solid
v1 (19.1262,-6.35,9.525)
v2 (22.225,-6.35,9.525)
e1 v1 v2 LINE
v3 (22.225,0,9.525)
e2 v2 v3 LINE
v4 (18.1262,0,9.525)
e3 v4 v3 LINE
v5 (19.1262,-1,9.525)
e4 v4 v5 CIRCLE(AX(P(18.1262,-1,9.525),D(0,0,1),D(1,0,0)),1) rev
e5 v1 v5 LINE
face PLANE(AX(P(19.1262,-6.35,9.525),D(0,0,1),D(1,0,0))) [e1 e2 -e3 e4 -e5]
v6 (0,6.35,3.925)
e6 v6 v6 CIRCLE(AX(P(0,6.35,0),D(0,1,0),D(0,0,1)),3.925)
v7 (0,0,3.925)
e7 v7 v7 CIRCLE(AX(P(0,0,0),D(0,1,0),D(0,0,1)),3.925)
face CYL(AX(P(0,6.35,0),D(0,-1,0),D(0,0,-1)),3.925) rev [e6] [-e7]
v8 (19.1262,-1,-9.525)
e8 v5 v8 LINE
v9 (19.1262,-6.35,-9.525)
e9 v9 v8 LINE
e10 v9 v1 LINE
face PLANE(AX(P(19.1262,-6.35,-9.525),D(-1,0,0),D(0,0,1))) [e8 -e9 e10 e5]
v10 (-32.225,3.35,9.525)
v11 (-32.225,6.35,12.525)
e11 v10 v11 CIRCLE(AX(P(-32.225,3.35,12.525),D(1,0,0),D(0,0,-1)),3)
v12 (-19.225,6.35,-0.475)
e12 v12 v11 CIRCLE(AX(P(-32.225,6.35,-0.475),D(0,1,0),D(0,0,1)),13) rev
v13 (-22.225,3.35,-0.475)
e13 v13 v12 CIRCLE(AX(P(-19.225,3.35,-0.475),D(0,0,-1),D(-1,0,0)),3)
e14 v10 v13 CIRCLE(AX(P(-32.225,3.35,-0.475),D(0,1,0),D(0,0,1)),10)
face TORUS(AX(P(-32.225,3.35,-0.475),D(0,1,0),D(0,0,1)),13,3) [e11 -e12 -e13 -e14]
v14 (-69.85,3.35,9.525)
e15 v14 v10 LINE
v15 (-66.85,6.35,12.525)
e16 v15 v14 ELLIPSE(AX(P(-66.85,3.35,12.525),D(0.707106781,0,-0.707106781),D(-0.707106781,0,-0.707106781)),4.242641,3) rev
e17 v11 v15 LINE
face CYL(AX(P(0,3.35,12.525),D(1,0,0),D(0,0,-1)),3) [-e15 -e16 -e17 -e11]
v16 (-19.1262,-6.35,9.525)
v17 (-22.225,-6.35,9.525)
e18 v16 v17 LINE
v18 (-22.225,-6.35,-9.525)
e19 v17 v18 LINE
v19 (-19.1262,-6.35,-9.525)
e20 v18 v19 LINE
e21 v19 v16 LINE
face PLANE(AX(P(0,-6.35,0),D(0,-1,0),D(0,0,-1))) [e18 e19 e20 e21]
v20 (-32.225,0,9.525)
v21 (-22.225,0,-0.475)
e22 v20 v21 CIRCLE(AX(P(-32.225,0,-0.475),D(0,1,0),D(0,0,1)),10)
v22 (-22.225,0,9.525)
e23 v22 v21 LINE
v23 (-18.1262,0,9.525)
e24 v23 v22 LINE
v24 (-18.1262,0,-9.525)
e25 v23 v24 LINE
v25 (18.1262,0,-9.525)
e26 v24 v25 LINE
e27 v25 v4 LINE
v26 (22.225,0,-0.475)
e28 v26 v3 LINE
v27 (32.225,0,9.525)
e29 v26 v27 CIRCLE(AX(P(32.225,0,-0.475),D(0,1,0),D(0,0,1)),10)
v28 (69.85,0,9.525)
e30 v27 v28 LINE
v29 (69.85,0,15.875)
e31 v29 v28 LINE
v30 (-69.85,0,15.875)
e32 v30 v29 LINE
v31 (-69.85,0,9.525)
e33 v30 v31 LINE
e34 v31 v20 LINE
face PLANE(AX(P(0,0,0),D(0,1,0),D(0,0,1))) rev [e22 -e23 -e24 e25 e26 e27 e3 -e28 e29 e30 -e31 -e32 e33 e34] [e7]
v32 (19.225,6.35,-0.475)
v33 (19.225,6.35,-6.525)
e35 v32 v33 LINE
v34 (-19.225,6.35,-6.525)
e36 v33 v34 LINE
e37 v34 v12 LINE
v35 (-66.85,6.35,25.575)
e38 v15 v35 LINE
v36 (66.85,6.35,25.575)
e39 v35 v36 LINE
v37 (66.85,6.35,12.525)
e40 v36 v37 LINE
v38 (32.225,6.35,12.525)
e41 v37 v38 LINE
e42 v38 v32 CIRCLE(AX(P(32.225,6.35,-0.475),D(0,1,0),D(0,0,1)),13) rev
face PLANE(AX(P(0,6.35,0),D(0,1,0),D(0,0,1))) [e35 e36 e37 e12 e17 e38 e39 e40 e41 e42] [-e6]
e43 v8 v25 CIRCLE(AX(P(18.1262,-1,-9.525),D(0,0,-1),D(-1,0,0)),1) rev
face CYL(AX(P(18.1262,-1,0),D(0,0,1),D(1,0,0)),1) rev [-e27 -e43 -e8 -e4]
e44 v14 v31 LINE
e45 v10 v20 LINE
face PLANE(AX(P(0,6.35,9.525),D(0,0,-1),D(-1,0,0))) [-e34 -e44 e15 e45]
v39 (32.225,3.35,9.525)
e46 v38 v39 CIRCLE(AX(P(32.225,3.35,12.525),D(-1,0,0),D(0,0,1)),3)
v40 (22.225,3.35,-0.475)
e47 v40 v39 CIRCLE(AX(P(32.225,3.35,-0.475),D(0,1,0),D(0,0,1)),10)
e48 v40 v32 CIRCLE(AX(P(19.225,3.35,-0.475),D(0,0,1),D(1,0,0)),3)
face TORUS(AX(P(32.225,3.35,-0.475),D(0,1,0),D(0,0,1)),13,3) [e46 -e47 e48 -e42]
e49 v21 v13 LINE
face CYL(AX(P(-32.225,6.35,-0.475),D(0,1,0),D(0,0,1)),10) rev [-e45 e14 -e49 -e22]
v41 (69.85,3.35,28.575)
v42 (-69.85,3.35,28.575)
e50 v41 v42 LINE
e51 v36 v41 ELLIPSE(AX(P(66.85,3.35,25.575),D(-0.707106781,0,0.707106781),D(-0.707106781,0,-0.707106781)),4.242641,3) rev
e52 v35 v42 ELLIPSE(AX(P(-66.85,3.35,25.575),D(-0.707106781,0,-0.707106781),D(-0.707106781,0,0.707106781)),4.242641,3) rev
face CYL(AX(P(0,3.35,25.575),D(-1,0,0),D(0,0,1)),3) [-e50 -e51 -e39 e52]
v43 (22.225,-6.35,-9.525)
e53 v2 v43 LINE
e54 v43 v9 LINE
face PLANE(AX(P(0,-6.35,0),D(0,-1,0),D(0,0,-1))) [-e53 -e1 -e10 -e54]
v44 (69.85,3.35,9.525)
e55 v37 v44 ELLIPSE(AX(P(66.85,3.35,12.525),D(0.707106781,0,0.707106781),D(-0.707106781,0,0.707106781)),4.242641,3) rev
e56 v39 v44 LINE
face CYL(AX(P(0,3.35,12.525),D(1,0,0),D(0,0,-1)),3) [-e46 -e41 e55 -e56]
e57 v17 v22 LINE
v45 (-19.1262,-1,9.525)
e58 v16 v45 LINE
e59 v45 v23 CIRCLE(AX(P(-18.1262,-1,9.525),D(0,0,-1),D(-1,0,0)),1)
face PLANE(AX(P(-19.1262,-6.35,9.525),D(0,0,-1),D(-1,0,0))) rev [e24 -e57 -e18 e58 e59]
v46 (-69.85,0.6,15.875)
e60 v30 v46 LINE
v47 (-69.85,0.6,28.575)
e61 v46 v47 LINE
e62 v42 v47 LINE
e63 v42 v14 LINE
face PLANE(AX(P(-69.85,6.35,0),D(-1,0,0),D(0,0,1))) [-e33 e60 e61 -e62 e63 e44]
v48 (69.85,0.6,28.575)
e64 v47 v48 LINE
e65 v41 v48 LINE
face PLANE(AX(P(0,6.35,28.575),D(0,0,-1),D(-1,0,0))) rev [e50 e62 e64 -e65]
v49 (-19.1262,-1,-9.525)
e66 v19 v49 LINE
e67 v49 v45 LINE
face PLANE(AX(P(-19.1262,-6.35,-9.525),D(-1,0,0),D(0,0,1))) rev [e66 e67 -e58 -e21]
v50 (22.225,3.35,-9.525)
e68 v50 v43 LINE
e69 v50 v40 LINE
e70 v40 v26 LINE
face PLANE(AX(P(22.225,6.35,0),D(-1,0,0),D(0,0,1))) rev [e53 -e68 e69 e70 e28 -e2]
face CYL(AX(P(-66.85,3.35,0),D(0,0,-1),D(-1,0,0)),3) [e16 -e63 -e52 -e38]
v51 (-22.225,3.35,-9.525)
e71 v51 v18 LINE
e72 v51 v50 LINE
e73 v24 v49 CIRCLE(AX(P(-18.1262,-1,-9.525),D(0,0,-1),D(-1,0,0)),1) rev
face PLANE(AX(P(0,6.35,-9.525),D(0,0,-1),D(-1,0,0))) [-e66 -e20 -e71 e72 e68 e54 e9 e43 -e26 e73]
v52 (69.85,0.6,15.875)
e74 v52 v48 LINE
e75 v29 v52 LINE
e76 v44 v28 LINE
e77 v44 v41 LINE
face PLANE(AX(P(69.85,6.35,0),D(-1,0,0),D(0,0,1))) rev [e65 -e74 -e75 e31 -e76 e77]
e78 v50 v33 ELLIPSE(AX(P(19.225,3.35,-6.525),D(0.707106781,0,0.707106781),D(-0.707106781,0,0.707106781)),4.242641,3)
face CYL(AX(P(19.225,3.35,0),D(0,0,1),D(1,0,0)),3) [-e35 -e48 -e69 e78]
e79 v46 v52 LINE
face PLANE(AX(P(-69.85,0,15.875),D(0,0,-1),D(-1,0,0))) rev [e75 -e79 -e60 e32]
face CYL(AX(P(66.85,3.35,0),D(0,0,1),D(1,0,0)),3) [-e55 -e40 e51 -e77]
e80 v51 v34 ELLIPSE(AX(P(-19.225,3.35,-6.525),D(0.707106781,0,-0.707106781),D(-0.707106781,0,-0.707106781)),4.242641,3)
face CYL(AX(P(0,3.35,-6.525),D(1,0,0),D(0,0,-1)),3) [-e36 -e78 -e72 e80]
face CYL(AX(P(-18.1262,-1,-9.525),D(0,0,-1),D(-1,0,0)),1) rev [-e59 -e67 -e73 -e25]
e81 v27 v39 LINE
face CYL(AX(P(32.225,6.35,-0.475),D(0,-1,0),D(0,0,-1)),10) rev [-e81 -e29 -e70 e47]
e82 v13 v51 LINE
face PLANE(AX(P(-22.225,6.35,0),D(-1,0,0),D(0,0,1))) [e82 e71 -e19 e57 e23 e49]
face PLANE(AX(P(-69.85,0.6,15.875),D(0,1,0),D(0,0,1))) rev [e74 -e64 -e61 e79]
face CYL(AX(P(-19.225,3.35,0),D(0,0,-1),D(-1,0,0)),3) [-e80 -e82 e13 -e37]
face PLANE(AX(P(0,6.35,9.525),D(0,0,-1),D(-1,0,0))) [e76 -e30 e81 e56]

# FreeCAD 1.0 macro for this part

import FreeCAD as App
import Part
import Sketcher
from FreeCAD import Vector
Q = App.Units.Quantity


def edges_at(feature, points):
    """Names of the edges that pass closest to the given points."""
    edges = feature.Shape.Edges
    near = lambda p: min(range(len(edges)), key=lambda i: edges[i].distToShape(Part.Vertex(*p))[0])
    return sorted({f"Edge{near(p) + 1}" for p in points})

doc = App.newDocument("Part")
body = doc.addObject("PartDesign::Body", "Body")

# Sketch on XZ plane
sketch1 = body.newObject("Sketcher::SketchObject", "Sketch")
sketch1.AttachmentSupport = (doc.getObject("XZ_Plane"), [""])
sketch1.MapMode = "FlatFace"
sketch1.addGeometry([
    Part.LineSegment(Vector(-69.8, 28.6, 0), Vector(69.8, 28.6, 0)),  # 0
    Part.LineSegment(Vector(69.8, 28.6, 0), Vector(69.8, 9.5, 0)),  # 1
    Part.LineSegment(Vector(69.8, 9.5, 0), Vector(22.2, 9.5, 0)),  # 2
    Part.LineSegment(Vector(22.2, 9.5, 0), Vector(22.2, -9.5, 0)),  # 3
    Part.LineSegment(Vector(22.2, -9.5, 0), Vector(-22.2, -9.5, 0)),  # 4
    Part.LineSegment(Vector(-22.2, -9.5, 0), Vector(-22.2, 9.5, 0)),  # 5
    Part.LineSegment(Vector(-22.2, 9.5, 0), Vector(-69.8, 9.5, 0)),  # 6
    Part.LineSegment(Vector(-69.8, 9.5, 0), Vector(-69.8, 28.6, 0)),  # 7
    Part.Circle(Vector(0, 0, 0), Vector(0, 0, 1), 3.9),  # 8
], False)
sketch1.addConstraint([
    Sketcher.Constraint("Coincident", 0, 2, 1, 1),
    Sketcher.Constraint("Coincident", 1, 2, 2, 1),
    Sketcher.Constraint("Coincident", 2, 2, 3, 1),
    Sketcher.Constraint("Coincident", 3, 2, 4, 1),
    Sketcher.Constraint("Coincident", 4, 2, 5, 1),
    Sketcher.Constraint("Coincident", 5, 2, 6, 1),
    Sketcher.Constraint("Coincident", 6, 2, 7, 1),
    Sketcher.Constraint("Coincident", 7, 2, 0, 1),
    Sketcher.Constraint("Horizontal", 0),
    Sketcher.Constraint("Vertical", 1),
    Sketcher.Constraint("Horizontal", 2),
    Sketcher.Constraint("Vertical", 3),
    Sketcher.Constraint("Horizontal", 4),
    Sketcher.Constraint("Vertical", 5),
    Sketcher.Constraint("Horizontal", 6),
    Sketcher.Constraint("Vertical", 7),
    Sketcher.Constraint("Coincident", 8, 3, -1, 1),
    Sketcher.Constraint("Symmetric", 2, 2, 4, 2, -1, 1),
    Sketcher.Constraint("Symmetric", 1, 2, 6, 2, -2),
    Sketcher.Constraint("Equal", 1, 3),
    Sketcher.Constraint("DistanceX", 0, 1, 0, 2, Q("5.5 in")),
    Sketcher.Constraint("DistanceX", 4, 2, 4, 1, Q("1.75 in")),
    Sketcher.Constraint("DistanceY", 1, 2, 1, 1, Q("0.75 in")),
    Sketcher.Constraint("Diameter", 8, Q("7.85 mm")),
])
pad1 = body.newObject("PartDesign::Pad", "Pad")
pad1.Profile = sketch1
pad1.Length = Q("0.25 in")
pad1.Reversed = True

# Sketch on YZ plane
sketch2 = body.newObject("Sketcher::SketchObject", "Sketch001")
sketch2.AttachmentSupport = (doc.getObject("YZ_Plane"), [""])
sketch2.MapMode = "FlatFace"
sketch2.AttachmentOffset = App.Placement(Vector(0, 0, 2.75 * 25.4), App.Rotation())
sketch2.addGeometry([
    Part.LineSegment(Vector(0.6, 28.6, 0), Vector(0, 28.6, 0)),
    Part.LineSegment(Vector(0, 28.6, 0), Vector(0, 15.9, 0)),
    Part.LineSegment(Vector(0, 15.9, 0), Vector(0.6, 15.9, 0)),
    Part.LineSegment(Vector(0.6, 15.9, 0), Vector(0.6, 28.6, 0)),
], False)
sketch2.addConstraint([
    Sketcher.Constraint("Coincident", 0, 2, 1, 1),
    Sketcher.Constraint("Coincident", 1, 2, 2, 1),
    Sketcher.Constraint("Coincident", 2, 2, 3, 1),
    Sketcher.Constraint("Coincident", 3, 2, 0, 1),
    Sketcher.Constraint("Horizontal", 0),
    Sketcher.Constraint("Vertical", 1),
    Sketcher.Constraint("Horizontal", 2),
    Sketcher.Constraint("Vertical", 3),
    Sketcher.Constraint("PointOnObject", 0, 2, -2),
    Sketcher.Constraint("DistanceY", 1, 2, 1, 1, Q("0.5 in")),
    Sketcher.Constraint("DistanceY", -1, 1, 0, 2, Q("1.125 in")),
    Sketcher.Constraint("DistanceX", 0, 2, 0, 1, Q("0.6 mm")),
])
pocket1 = body.newObject("PartDesign::Pocket", "Pocket")
pocket1.Profile = sketch2
pocket1.Type = "ThroughAll"

# Sketch on XZ plane
sketch3 = body.newObject("Sketcher::SketchObject", "Sketch002")
sketch3.AttachmentSupport = (doc.getObject("XZ_Plane"), [""])
sketch3.MapMode = "FlatFace"
sketch3.addGeometry([
    Part.LineSegment(Vector(-22.2, 9.5, 0), Vector(-22.2, -9.5, 0)),
    Part.LineSegment(Vector(-22.2, -9.5, 0), Vector(-19.1, -9.5, 0)),
    Part.LineSegment(Vector(-19.1, -9.5, 0), Vector(-19.1, 9.5, 0)),
    Part.LineSegment(Vector(-19.1, 9.5, 0), Vector(-22.2, 9.5, 0)),
], False)
sketch3.addConstraint([
    Sketcher.Constraint("Coincident", 0, 2, 1, 1),
    Sketcher.Constraint("Coincident", 1, 2, 2, 1),
    Sketcher.Constraint("Coincident", 2, 2, 3, 1),
    Sketcher.Constraint("Coincident", 3, 2, 0, 1),
    Sketcher.Constraint("Vertical", 0),
    Sketcher.Constraint("Horizontal", 1),
    Sketcher.Constraint("Vertical", 2),
    Sketcher.Constraint("Horizontal", 3),
    Sketcher.Constraint("DistanceY", 0, 2, 0, 1, Q("0.75 in")),
    Sketcher.Constraint("DistanceX", 1, 1, 1, 2, Q("0.122 in")),
    Sketcher.Constraint("DistanceX", 0, 2, -1, 1, Q("0.875 in")),
    Sketcher.Constraint("DistanceY", 0, 2, -1, 1, Q("0.375 in")),
])
pad2 = body.newObject("PartDesign::Pad", "Pad001")
pad2.Profile = sketch3
pad2.Length = Q("0.25 in")
doc.recompute()

mirrored = body.newObject("PartDesign::Mirrored", "Mirrored")
mirrored.Originals = [pad2]
mirrored.MirrorPlane = (doc.getObject("YZ_Plane"), [""])
body.Tip = mirrored
doc.recompute()

fillet = body.newObject("PartDesign::Fillet", "Fillet")
fillet.Base = (mirrored, edges_at(mirrored, [(-22.225, 3.175, 9.525), (22.225, 3.175, 9.525)]))
fillet.Radius = 10
doc.recompute()

fillet2 = body.newObject("PartDesign::Fillet", "Fillet001")
fillet2.Base = (fillet, edges_at(fillet, [
    (0, 6.35, 28.575),
    (69.85, 6.35, 19.05),
    (0, 6.35, -9.525),
    (-51.038, 6.35, 9.525),
    (-69.85, 6.35, 19.05),
    (22.225, 6.35, -5),
    (51.038, 6.35, 9.525),
    (-22.225, 6.35, -5),
    (25.154, 6.35, 6.596),
    (-25.154, 6.35, 6.596),
]))
fillet2.Radius = 3
doc.recompute()

fillet3 = body.newObject("PartDesign::Fillet", "Fillet002")
fillet3.Base = (fillet2, edges_at(fillet2, [(-19.126, 0, 0), (19.126, 0, 0)]))
fillet3.Radius = 1

doc.recompute()
